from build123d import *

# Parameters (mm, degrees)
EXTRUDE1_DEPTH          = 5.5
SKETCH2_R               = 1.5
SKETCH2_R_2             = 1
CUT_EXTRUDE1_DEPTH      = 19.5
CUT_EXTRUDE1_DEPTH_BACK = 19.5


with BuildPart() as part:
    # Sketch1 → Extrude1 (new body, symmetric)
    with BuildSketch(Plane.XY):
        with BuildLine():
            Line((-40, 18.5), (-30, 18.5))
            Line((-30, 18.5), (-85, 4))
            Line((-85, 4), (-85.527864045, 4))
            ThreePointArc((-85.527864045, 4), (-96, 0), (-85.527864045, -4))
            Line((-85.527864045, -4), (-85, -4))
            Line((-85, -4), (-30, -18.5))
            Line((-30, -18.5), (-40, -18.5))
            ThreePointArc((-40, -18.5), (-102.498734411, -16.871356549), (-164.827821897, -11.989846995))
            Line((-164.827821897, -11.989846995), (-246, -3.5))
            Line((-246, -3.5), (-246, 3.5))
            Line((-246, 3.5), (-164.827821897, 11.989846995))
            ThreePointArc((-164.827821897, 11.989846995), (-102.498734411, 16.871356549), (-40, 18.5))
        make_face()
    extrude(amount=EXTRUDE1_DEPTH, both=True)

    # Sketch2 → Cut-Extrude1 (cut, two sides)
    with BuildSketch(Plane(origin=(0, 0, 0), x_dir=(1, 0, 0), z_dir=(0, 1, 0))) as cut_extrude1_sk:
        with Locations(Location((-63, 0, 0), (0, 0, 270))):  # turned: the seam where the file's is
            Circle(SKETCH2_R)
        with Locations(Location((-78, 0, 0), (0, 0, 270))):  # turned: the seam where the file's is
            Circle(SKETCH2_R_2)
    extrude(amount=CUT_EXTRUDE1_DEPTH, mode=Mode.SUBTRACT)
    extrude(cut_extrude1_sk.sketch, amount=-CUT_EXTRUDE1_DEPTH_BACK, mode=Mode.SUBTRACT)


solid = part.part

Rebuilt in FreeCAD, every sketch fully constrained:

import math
import FreeCAD as App
import Part
import Sketcher

V = App.Vector

doc = App.newDocument("Part")
params = doc.addObject("Spreadsheet::Sheet", "Params")
for row, (alias, value) in enumerate([
    ("sketch1_radius", "1200 mm"),
    ("sketch1_radius2", "6 mm"),
    ("sketch1_width", "10 mm"),
    ("sketch1_height", "7 mm"),
    ("pad1_length", "11 mm"),
    ("sketch2_diameter", "3 mm"),
    ("sketch2_diameter2", "2 mm"),
], start=1):
    params.set(f"A{row}", alias)
    params.set(f"B{row}", "=" + value)
    params.setAlias(f"B{row}", alias)

body = doc.addObject("PartDesign::Body", "Body")

sketch1 = body.newObject("Sketcher::SketchObject", "Sketch")
sketch1.AttachmentSupport = (doc.getObject("XY_Plane"), [""])
sketch1.MapMode = "FlatFace"
sketch1.addGeometry([
    Part.LineSegment(V(-30, 18.5, 0), V(-40, 18.5, 0)),
    Part.ArcOfCircle(Part.Circle(V(-40, -1181.5, 0), V(0, 0, 1), 1200), math.radians(90), math.radians(95.97)),
    Part.LineSegment(V(-164.8, 12, 0), V(-246, 3.5, 0)),
    Part.LineSegment(V(-246, 3.5, 0), V(-246, -3.5, 0)),
    Part.LineSegment(V(-246, -3.5, 0), V(-164.8, -12, 0)),
    Part.ArcOfCircle(Part.Circle(V(-40, 1181.5, 0), V(0, 0, 1), 1200), math.radians(-95.97), math.radians(-90)),
    Part.LineSegment(V(-40, -18.5, 0), V(-30, -18.5, 0)),
    Part.LineSegment(V(-30, -18.5, 0), V(-85, -4, 0)),
    Part.LineSegment(V(-85, -4, 0), V(-85.5, -4, 0)),
    Part.ArcOfCircle(Part.Circle(V(-90, 0, 0), V(0, 0, 1), 6), math.radians(42), math.radians(318)),
    Part.LineSegment(V(-85.5, 4, 0), V(-85, 4, 0)),
    Part.LineSegment(V(-85, 4, 0), V(-30, 18.5, 0)),
], False)
sketch1.addConstraint([
    Sketcher.Constraint("Tangent", 0, 2, 1, 1),
    Sketcher.Constraint("Tangent", 1, 2, 2, 1),
    Sketcher.Constraint("Coincident", 2, 2, 3, 1),
    Sketcher.Constraint("Coincident", 3, 2, 4, 1),
    Sketcher.Constraint("Tangent", 4, 2, 5, 1),
    Sketcher.Constraint("Tangent", 5, 2, 6, 1),
    Sketcher.Constraint("Coincident", 6, 2, 7, 1),
    Sketcher.Constraint("Coincident", 7, 2, 8, 1),
    Sketcher.Constraint("Coincident", 8, 2, 9, 2),
    Sketcher.Constraint("Coincident", 9, 1, 10, 1),
    Sketcher.Constraint("Coincident", 10, 2, 11, 1),
    Sketcher.Constraint("Coincident", 11, 2, 0, 1),
    Sketcher.Constraint("Horizontal", 0),
    Sketcher.Constraint("Vertical", 3),
    Sketcher.Constraint("Horizontal", 6),
    Sketcher.Constraint("Horizontal", 8),
    Sketcher.Constraint("Horizontal", 10),
    Sketcher.Constraint("Equal", 1, 5),
    Sketcher.Constraint("Symmetric", 1, 3, 5, 3, -1),
    Sketcher.Constraint("Symmetric", 8, 2, 9, 1, -1),
    Sketcher.Constraint("Vertical", 7, 2, 10, 2),
    Sketcher.Constraint("Vertical", 6, 2, 11, 2),
    Sketcher.Constraint("Equal", 2, 4),
    Sketcher.Constraint("Radius", 1, 1200.0),
    Sketcher.Constraint("Radius", 9, 6.0),
    Sketcher.Constraint("DistanceX", 0, 2, 0, 1, 10.0),
    Sketcher.Constraint("DistanceY", 3, 2, 3, 1, 7.0),
    Sketcher.Constraint("DistanceX", 1, 3, -1, 1, 40.0),
    Sketcher.Constraint("DistanceX", 9, 3, -1, 1, 90.0),
    Sketcher.Constraint("DistanceX", 2, 2, -1, 1, 246.0),
    Sketcher.Constraint("DistanceX", 7, 2, -1, 1, 85.0),
    Sketcher.Constraint("DistanceY", 7, 2, -1, 1, 4.0),
    Sketcher.Constraint("DistanceY", 1, 3, 5, 3, 2363.0),
])
sketch1.setExpression("Constraints[23]", "Params.sketch1_radius")
sketch1.setExpression("Constraints[24]", "Params.sketch1_radius2")
sketch1.setExpression("Constraints[25]", "Params.sketch1_width")
sketch1.setExpression("Constraints[26]", "Params.sketch1_height")
pad1 = body.newObject("PartDesign::Pad", "Pad")
pad1.Profile = sketch1
pad1.setExpression("Length", "Params.pad1_length")
pad1.Midplane = True

sketch2 = body.newObject("Sketcher::SketchObject", "Sketch001")
sketch2.AttachmentSupport = (doc.getObject("XZ_Plane"), [""])
sketch2.MapMode = "FlatFace"
sketch2.addGeometry([
    Part.Circle(V(-63, 0, 0), V(0, 0, 1), 1.5),
    Part.Circle(V(-78, 0, 0), V(0, 0, 1), 1),
], False)
sketch2.addConstraint([
    Sketcher.Constraint("PointOnObject", 0, 3, -1),
    Sketcher.Constraint("PointOnObject", 1, 3, -1),
    Sketcher.Constraint("Diameter", 0, 3.0),
    Sketcher.Constraint("Diameter", 1, 2.0),
    Sketcher.Constraint("DistanceX", 0, 3, -1, 1, 63.0),
    Sketcher.Constraint("DistanceX", 1, 3, -1, 1, 78.0),
])
sketch2.setExpression("Constraints[2]", "Params.sketch2_diameter")
sketch2.setExpression("Constraints[3]", "Params.sketch2_diameter2")
pocket1 = body.newObject("PartDesign::Pocket", "Pocket")
pocket1.Profile = sketch2
pocket1.Type = "ThroughAll"
pocket1.Midplane = True

doc.recompute()
